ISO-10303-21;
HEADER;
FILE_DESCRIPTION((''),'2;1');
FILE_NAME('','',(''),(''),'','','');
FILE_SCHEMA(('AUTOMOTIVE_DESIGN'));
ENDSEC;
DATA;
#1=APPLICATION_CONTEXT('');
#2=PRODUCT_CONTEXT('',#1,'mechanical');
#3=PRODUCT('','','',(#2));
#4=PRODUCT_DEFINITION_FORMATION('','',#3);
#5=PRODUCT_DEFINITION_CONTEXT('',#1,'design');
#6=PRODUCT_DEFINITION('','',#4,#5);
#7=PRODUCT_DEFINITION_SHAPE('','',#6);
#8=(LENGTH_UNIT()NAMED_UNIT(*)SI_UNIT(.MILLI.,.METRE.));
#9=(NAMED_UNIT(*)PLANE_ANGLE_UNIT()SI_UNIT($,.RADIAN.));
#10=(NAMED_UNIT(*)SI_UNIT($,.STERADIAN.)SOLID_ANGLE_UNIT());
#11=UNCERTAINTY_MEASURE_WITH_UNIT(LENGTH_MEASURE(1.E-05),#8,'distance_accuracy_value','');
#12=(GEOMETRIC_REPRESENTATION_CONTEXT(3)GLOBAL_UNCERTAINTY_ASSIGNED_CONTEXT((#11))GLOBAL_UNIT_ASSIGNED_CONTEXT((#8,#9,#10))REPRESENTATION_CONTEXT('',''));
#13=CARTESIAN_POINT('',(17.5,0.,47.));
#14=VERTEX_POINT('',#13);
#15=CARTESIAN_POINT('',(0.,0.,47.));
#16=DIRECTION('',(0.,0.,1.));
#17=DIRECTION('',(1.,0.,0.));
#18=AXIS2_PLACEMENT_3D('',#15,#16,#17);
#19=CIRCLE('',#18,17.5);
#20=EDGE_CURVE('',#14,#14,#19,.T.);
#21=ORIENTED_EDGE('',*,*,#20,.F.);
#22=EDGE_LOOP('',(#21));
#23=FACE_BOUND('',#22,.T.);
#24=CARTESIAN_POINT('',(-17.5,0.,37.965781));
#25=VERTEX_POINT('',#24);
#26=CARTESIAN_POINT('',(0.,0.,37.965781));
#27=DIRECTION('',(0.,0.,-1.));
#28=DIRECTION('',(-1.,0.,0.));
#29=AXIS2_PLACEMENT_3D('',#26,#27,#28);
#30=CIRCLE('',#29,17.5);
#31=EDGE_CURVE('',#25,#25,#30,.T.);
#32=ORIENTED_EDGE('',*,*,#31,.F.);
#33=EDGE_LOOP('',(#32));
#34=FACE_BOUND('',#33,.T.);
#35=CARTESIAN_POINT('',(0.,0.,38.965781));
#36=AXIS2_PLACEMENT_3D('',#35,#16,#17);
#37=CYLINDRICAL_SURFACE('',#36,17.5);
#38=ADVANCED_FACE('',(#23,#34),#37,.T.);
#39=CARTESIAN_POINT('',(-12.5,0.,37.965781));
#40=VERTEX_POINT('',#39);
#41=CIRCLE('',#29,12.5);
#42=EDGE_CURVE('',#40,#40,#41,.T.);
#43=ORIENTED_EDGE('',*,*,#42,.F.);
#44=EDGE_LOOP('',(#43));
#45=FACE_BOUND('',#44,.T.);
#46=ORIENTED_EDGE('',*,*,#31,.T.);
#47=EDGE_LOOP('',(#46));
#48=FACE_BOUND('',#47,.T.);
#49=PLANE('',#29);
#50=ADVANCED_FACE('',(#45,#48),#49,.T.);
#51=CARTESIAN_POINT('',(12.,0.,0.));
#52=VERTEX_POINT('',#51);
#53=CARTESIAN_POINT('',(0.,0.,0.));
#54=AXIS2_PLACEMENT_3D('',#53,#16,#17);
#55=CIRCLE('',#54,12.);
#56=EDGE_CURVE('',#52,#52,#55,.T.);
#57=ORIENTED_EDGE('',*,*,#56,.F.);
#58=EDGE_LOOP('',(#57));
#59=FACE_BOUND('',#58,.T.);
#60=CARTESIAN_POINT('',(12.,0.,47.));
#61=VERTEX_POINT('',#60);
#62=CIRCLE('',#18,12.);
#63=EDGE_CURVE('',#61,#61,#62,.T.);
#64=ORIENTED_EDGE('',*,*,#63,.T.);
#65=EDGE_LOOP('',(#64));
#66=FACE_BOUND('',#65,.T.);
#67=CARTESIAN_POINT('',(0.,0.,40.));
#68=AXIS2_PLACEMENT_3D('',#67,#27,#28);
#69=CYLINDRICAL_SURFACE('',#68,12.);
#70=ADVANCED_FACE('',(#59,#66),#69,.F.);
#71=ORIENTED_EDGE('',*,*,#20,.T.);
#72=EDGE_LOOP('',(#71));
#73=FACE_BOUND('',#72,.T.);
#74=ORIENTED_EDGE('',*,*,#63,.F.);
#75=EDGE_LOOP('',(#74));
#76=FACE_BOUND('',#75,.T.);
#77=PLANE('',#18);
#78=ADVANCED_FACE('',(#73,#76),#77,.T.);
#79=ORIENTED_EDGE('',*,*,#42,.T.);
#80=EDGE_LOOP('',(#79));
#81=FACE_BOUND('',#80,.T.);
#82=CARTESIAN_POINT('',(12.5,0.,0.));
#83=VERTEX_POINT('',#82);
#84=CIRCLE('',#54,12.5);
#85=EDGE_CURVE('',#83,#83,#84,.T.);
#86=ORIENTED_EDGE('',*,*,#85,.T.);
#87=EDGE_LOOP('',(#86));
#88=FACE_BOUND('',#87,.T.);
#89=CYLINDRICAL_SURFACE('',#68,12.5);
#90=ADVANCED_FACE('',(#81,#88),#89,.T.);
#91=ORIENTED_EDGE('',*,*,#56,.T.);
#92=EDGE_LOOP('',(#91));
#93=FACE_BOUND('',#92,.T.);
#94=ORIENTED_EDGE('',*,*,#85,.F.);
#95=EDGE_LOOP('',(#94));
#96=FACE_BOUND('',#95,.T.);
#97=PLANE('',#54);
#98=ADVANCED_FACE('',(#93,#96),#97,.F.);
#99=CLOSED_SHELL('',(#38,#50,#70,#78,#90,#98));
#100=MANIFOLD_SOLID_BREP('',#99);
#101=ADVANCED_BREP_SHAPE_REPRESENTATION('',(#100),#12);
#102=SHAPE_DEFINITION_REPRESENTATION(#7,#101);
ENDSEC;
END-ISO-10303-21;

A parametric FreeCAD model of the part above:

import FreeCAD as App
import Part
import Sketcher
from FreeCAD import Vector
Q = App.Units.Quantity

doc = App.newDocument("Part")
params = doc.addObject("Spreadsheet::Sheet", "Params")
for row, (alias, value) in enumerate([
    ("sketch1_diameter", "25 mm"),
    ("sketch1_diameter2", "24 mm"),
    ("pad1_length", "40 mm"),
    ("sketch2_diameter", "35 mm"),
    ("sketch2_diameter2", "24 mm"),
    ("pad2_length", "7 mm"),
    ("pad2_length2", "1.034219 mm"),
    ("sketch3_diameter", "35 mm"),
    ("pad3_length", "1 mm"),
    ("sketch4_diameter", "24 mm"),
    ("pocket1_length", "1 mm"),
], start=1):
    params.set(f"A{row}", alias)
    params.set(f"B{row}", "=" + value)
    params.setAlias(f"B{row}", alias)

body = doc.addObject("PartDesign::Body", "Body")

sketch1 = body.newObject("Sketcher::SketchObject", "Sketch")
sketch1.AttachmentSupport = (doc.getObject("XY_Plane"), [""])
sketch1.MapMode = "FlatFace"
sketch1.addGeometry(Part.Circle(Vector(0, 0, 0), Vector(0, 0, 1), 12), False)
sketch1.addGeometry(Part.Circle(Vector(0, 0, 0), Vector(0, 0, 1), 12), False)
sketch1.addConstraint(Sketcher.Constraint("Coincident", 0, 3, -1, 1))
sketch1.addConstraint(Sketcher.Constraint("Coincident", 1, 3, -1, 1))
sketch1.addConstraint(Sketcher.Constraint("Diameter", 0, Q("25 mm")))
sketch1.addConstraint(Sketcher.Constraint("Diameter", 1, Q("24 mm")))
sketch1.setExpression("Constraints[2]", "Params.sketch1_diameter")
sketch1.setExpression("Constraints[3]", "Params.sketch1_diameter2")
pad1 = body.newObject("PartDesign::Pad", "Pad")
pad1.Profile = sketch1
pad1.setExpression("Length", "Params.pad1_length")

sketch2 = body.newObject("Sketcher::SketchObject", "Sketch001")
sketch2.AttachmentSupport = (doc.getObject("XY_Plane"), [""])
sketch2.MapMode = "FlatFace"
sketch2.AttachmentOffset = App.Placement(Vector(0, 0, 40), App.Rotation())
sketch2.addGeometry(Part.Circle(Vector(0, 0, 0), Vector(0, 0, 1), 18), False)
sketch2.addGeometry(Part.Circle(Vector(0, 0, 0), Vector(0, 0, 1), 12), False)
sketch2.addConstraint(Sketcher.Constraint("Coincident", 0, 3, -1, 1))
sketch2.addConstraint(Sketcher.Constraint("Coincident", 1, 3, -1, 1))
sketch2.addConstraint(Sketcher.Constraint("Diameter", 0, Q("35 mm")))
sketch2.addConstraint(Sketcher.Constraint("Diameter", 1, Q("24 mm")))
sketch2.setExpression("Constraints[2]", "Params.sketch2_diameter")
sketch2.setExpression("Constraints[3]", "Params.sketch2_diameter2")
pad2 = body.newObject("PartDesign::Pad", "Pad001")
pad2.Profile = sketch2
pad2.Type = "TwoLengths"
pad2.setExpression("Length", "Params.pad2_length")
pad2.setExpression("Length2", "Params.pad2_length2")

sketch3 = body.newObject("Sketcher::SketchObject", "Sketch002")
sketch3.AttachmentSupport = (doc.getObject("XY_Plane"), [""])
sketch3.MapMode = "FlatFace"
sketch3.AttachmentOffset = App.Placement(Vector(0, 0, 38.965781), App.Rotation())
sketch3.addGeometry(Part.Circle(Vector(0, 0, 0), Vector(0, 0, 1), 18), False)
sketch3.addConstraint(Sketcher.Constraint("Coincident", 0, 3, -1, 1))
sketch3.addConstraint(Sketcher.Constraint("Diameter", 0, Q("35 mm")))
sketch3.setExpression("Constraints[1]", "Params.sketch3_diameter")
pad3 = body.newObject("PartDesign::Pad", "Pad002")
pad3.Profile = sketch3
pad3.setExpression("Length", "Params.pad3_length")
pad3.Reversed = True

sketch4 = body.newObject("Sketcher::SketchObject", "Sketch003")
sketch4.AttachmentSupport = (doc.getObject("XY_Plane"), [""])
sketch4.MapMode = "FlatFace"
sketch4.AttachmentOffset = App.Placement(Vector(0, 0, 37.965781), App.Rotation())
sketch4.addGeometry(Part.Circle(Vector(0, 0, 0), Vector(0, 0, 1), 12), False)
sketch4.addConstraint(Sketcher.Constraint("Coincident", 0, 3, -1, 1))
sketch4.addConstraint(Sketcher.Constraint("Diameter", 0, Q("24 mm")))
sketch4.setExpression("Constraints[1]", "Params.sketch4_diameter")
pocket1 = body.newObject("PartDesign::Pocket", "Pocket")
pocket1.Profile = sketch4
pocket1.setExpression("Length", "Params.pocket1_length")
pocket1.Reversed = True

doc.recompute()
